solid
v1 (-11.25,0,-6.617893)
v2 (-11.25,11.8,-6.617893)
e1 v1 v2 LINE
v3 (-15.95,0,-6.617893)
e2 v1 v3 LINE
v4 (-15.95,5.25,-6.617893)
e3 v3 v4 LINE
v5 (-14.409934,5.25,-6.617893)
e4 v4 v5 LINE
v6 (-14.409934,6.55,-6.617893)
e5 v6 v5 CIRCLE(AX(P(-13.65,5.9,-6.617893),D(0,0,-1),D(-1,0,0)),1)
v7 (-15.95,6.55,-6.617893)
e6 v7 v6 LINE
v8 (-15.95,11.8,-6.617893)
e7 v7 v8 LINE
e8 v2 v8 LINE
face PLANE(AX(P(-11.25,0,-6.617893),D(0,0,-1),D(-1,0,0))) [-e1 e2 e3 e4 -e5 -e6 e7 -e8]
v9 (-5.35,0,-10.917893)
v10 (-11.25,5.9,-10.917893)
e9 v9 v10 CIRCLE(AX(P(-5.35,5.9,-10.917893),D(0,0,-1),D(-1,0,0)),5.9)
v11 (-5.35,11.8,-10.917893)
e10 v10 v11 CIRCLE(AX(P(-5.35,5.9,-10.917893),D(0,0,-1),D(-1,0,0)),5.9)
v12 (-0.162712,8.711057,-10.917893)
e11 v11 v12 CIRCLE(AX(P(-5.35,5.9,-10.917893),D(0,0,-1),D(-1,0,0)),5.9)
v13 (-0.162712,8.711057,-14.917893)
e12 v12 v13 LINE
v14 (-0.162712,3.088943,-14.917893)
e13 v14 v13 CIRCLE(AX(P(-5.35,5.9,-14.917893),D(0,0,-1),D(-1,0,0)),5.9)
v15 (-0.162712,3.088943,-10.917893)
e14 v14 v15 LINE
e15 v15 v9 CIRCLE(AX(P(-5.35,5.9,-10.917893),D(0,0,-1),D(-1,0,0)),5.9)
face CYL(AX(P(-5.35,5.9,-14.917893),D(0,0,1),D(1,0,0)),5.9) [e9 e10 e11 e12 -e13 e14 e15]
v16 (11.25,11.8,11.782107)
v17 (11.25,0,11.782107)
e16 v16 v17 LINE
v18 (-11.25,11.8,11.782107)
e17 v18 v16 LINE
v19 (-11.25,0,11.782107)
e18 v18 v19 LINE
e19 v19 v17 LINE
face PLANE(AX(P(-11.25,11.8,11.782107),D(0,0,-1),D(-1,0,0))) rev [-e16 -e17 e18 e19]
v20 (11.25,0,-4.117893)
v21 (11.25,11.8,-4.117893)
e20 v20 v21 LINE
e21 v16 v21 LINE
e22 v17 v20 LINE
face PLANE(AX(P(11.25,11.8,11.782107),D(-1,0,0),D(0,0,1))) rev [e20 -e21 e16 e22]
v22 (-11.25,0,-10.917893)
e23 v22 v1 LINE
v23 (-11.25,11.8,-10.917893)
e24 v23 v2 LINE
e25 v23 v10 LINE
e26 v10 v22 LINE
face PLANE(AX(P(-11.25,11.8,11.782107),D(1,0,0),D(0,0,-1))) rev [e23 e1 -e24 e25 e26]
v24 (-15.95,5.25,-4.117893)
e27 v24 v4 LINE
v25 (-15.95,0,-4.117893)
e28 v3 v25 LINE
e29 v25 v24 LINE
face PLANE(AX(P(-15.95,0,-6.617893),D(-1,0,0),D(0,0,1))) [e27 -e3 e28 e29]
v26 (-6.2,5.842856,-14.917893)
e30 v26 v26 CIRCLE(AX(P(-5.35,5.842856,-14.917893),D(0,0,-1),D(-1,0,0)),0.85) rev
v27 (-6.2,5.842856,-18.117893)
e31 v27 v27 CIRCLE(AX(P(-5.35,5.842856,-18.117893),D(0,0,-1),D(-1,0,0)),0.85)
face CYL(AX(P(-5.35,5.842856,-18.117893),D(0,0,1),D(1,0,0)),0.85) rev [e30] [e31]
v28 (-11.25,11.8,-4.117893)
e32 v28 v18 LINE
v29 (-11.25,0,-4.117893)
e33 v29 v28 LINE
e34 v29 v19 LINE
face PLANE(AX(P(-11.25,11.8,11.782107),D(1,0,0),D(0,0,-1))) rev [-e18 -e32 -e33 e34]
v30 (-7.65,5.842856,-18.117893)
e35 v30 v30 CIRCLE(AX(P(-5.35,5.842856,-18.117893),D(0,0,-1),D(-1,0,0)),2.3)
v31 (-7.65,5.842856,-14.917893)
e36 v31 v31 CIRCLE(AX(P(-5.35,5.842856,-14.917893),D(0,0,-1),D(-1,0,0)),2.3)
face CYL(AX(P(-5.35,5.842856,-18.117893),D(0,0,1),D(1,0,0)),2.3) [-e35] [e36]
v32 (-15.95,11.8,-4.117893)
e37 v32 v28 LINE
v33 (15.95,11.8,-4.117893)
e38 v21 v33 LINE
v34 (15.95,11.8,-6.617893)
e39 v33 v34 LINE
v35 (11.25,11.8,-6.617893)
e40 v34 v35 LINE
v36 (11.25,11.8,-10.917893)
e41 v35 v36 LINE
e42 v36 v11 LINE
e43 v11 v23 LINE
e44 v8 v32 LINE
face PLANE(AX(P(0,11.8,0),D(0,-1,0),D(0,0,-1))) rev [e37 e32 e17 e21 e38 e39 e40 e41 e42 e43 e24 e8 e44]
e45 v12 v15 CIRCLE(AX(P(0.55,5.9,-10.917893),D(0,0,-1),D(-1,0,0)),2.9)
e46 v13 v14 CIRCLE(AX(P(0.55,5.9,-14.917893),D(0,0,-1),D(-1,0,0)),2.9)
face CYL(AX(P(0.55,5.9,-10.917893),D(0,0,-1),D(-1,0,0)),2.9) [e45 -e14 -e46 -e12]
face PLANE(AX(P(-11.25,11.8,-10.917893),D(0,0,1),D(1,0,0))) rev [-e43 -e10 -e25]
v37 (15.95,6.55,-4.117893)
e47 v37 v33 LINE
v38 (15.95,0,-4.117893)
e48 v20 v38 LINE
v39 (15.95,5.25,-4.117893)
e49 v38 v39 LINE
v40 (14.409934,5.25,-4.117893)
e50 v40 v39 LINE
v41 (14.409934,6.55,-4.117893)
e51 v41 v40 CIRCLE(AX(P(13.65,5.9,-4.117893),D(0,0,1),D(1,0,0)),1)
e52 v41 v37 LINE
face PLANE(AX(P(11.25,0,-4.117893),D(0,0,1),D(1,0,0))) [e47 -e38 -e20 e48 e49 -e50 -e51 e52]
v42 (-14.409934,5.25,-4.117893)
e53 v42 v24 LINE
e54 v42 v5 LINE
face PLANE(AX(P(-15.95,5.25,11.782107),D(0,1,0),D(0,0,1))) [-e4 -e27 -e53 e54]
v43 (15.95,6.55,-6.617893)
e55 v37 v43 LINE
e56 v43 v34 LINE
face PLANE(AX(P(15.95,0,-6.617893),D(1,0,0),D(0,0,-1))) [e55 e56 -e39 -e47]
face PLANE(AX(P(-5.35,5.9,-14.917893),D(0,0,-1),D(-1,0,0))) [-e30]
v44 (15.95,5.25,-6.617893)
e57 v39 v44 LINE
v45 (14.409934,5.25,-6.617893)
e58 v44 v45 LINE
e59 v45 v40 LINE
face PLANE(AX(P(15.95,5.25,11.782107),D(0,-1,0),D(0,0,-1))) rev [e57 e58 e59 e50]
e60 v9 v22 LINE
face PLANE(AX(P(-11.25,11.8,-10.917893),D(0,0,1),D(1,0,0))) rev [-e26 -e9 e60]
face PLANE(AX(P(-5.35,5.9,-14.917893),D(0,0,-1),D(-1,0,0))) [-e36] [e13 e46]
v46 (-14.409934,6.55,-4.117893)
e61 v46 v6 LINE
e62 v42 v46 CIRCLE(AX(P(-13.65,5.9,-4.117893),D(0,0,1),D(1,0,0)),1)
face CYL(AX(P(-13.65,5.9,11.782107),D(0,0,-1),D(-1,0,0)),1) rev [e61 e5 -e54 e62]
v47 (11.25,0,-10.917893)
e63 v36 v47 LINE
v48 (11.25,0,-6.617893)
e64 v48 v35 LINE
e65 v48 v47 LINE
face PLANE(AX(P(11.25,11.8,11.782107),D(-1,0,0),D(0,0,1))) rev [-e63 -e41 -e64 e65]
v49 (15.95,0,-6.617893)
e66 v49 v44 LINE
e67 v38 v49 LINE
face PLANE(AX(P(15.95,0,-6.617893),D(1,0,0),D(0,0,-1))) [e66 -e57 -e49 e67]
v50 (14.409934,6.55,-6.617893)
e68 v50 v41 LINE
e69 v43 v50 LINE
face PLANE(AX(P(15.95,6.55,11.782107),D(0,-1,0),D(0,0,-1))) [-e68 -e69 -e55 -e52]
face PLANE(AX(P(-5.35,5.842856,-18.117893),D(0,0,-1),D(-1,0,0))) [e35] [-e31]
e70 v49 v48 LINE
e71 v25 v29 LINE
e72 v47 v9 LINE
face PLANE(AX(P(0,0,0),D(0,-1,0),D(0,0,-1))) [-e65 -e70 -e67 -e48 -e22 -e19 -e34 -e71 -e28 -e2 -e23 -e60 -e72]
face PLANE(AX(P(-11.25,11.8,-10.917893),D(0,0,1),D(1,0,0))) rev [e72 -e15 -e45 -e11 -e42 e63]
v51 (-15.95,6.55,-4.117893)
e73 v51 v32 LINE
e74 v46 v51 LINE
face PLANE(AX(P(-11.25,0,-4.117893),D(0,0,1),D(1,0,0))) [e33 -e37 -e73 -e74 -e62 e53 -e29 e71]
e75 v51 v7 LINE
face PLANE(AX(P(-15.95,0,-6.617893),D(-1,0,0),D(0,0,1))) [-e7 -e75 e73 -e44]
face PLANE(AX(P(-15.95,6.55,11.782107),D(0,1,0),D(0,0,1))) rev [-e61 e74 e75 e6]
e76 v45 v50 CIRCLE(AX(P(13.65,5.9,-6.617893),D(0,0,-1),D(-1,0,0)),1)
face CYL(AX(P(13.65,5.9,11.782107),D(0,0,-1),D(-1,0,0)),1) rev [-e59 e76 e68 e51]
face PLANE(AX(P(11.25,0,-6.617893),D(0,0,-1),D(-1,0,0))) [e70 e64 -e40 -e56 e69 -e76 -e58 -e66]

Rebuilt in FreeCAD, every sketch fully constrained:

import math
import FreeCAD as App
import Part
import Sketcher
from FreeCAD import Vector
Q = App.Units.Quantity


def add_polygon(sketch, points):
    """Adds a closed chain of lines whose ends are joined by coincident constraints."""
    first, n = sketch.GeometryCount, len(points)
    for a, b in zip(points, points[1:] + points[:1]):
        sketch.addGeometry(Part.LineSegment(App.Vector(*a, 0), App.Vector(*b, 0)), False)
    for i in range(n):
        sketch.addConstraint(Sketcher.Constraint("Coincident", first + i, 2, first + (i + 1) % n, 1))

doc = App.newDocument("Part")
params = doc.addObject("Spreadsheet::Sheet", "Params")
for row, (alias, value) in enumerate([
    ("sketch1_width", "22.5 mm"),
    ("sketch1_height", "22.7 mm"),
    ("pad1_length", "11.8 mm"),
    ("sketch2_width", "4.7 mm"),
    ("sketch2_height", "2.5 mm"),
    ("pad2_length", "11.8 mm"),
    ("sketch3_width", "4.7 mm"),
    ("sketch3_height", "2.5 mm"),
    ("pad3_length", "11.8 mm"),
    ("sketch4_diameter", "11.8 mm"),
    ("pad4_length", "4 mm"),
    ("sketch5_diameter", "5.8 mm"),
    ("pad5_length", "4 mm"),
    ("sketch6_radius", "1 mm"),
    ("sketch6_height", "1.3 mm"),
    ("sketch7_radius", "1 mm"),
    ("sketch7_height", "1.3 mm"),
    ("sketch8_diameter", "4.6 mm"),
    ("sketch8_diameter2", "1.7 mm"),
    ("pad6_length", "3.2 mm"),
], start=1):
    params.set(f"A{row}", alias)
    params.set(f"B{row}", "=" + value)
    params.setAlias(f"B{row}", alias)

body = doc.addObject("PartDesign::Body", "Body")

sketch1 = doc.addObject("Sketcher::SketchObject", "Sketch")
body.addObject(sketch1)
sketch1.AttachmentSupport = (doc.XZ_Plane, [""])
sketch1.MapMode = "FlatFace"
add_polygon(sketch1, [(-11.25, -10.917893), (-11.25, 11.782107), (11.25, 11.782107), (11.25, -10.917893)])
sketch1.addConstraint(Sketcher.Constraint("Vertical", 0))
sketch1.addConstraint(Sketcher.Constraint("Horizontal", 1))
sketch1.addConstraint(Sketcher.Constraint("Vertical", 2))
sketch1.addConstraint(Sketcher.Constraint("Horizontal", 3))
sketch1.addConstraint(Sketcher.Constraint("DistanceX", 1, 1, 1, 2, Q("22.5 mm")))
sketch1.addConstraint(Sketcher.Constraint("DistanceY", 0, 1, 0, 2, Q("22.7 mm")))
sketch1.addConstraint(Sketcher.Constraint("DistanceX", 0, 2, -1, 1, Q("11.25 mm")))
sketch1.addConstraint(Sketcher.Constraint("DistanceY", -1, 1, 0, 2, Q("11.782107 mm")))
sketch1.setExpression("Constraints[8]", "Params.sketch1_width")
sketch1.setExpression("Constraints[9]", "Params.sketch1_height")
pad1 = doc.addObject("PartDesign::Pad", "Pad")
body.addObject(pad1)
pad1.Profile = sketch1
pad1.setExpression("Length", "Params.pad1_length")
pad1.Reversed = True

sketch2 = doc.addObject("Sketcher::SketchObject", "Sketch001")
body.addObject(sketch2)
sketch2.AttachmentSupport = (doc.XZ_Plane, [""])
sketch2.MapMode = "FlatFace"
sketch2.AttachmentOffset = App.Placement(Vector(0, 0, -11.8), App.Rotation())
add_polygon(sketch2, [(11.25, -6.617893), (11.25, -4.117893), (15.95, -4.117893), (15.95, -6.617893)])
sketch2.addConstraint(Sketcher.Constraint("Vertical", 0))
sketch2.addConstraint(Sketcher.Constraint("Horizontal", 1))
sketch2.addConstraint(Sketcher.Constraint("Vertical", 2))
sketch2.addConstraint(Sketcher.Constraint("Horizontal", 3))
sketch2.addConstraint(Sketcher.Constraint("DistanceX", 1, 1, 1, 2, Q("4.7 mm")))
sketch2.addConstraint(Sketcher.Constraint("DistanceY", 0, 1, 0, 2, Q("2.5 mm")))
sketch2.addConstraint(Sketcher.Constraint("DistanceX", -1, 1, 0, 2, Q("11.25 mm")))
sketch2.addConstraint(Sketcher.Constraint("DistanceY", 0, 2, -1, 1, Q("4.117893 mm")))
sketch2.setExpression("Constraints[8]", "Params.sketch2_width")
sketch2.setExpression("Constraints[9]", "Params.sketch2_height")
pad2 = doc.addObject("PartDesign::Pad", "Pad001")
body.addObject(pad2)
pad2.Profile = sketch2
pad2.setExpression("Length", "Params.pad2_length")

sketch3 = doc.addObject("Sketcher::SketchObject", "Sketch002")
body.addObject(sketch3)
sketch3.AttachmentSupport = (doc.XZ_Plane, [""])
sketch3.MapMode = "FlatFace"
sketch3.AttachmentOffset = App.Placement(Vector(0, 0, -11.8), App.Rotation())
add_polygon(sketch3, [(-15.95, -6.617893), (-15.95, -4.117893), (-11.25, -4.117893), (-11.25, -6.617893)])
sketch3.addConstraint(Sketcher.Constraint("Vertical", 0))
sketch3.addConstraint(Sketcher.Constraint("Horizontal", 1))
sketch3.addConstraint(Sketcher.Constraint("Vertical", 2))
sketch3.addConstraint(Sketcher.Constraint("Horizontal", 3))
sketch3.addConstraint(Sketcher.Constraint("DistanceX", 1, 1, 1, 2, Q("4.7 mm")))
sketch3.addConstraint(Sketcher.Constraint("DistanceY", 0, 1, 0, 2, Q("2.5 mm")))
sketch3.addConstraint(Sketcher.Constraint("DistanceX", 0, 2, -1, 1, Q("15.95 mm")))
sketch3.addConstraint(Sketcher.Constraint("DistanceY", 0, 2, -1, 1, Q("4.117893 mm")))
sketch3.setExpression("Constraints[8]", "Params.sketch3_width")
sketch3.setExpression("Constraints[9]", "Params.sketch3_height")
pad3 = doc.addObject("PartDesign::Pad", "Pad002")
body.addObject(pad3)
pad3.Profile = sketch3
pad3.setExpression("Length", "Params.pad3_length")

sketch4 = doc.addObject("Sketcher::SketchObject", "Sketch003")
body.addObject(sketch4)
sketch4.AttachmentSupport = (doc.XY_Plane, [""])
sketch4.MapMode = "FlatFace"
sketch4.AttachmentOffset = App.Placement(Vector(0, 0, -10.917893), App.Rotation())
sketch4.addGeometry(Part.Circle(Vector(-5.35, 5.9, 0), Vector(0, 0, 1), 5.9), False)
sketch4.addConstraint(Sketcher.Constraint("Diameter", 0, Q("11.8 mm")))
sketch4.addConstraint(Sketcher.Constraint("DistanceY", -1, 1, 0, 3, Q("5.9 mm")))
sketch4.addConstraint(Sketcher.Constraint("DistanceX", 0, 3, -1, 1, Q("5.35 mm")))
sketch4.setExpression("Constraints[0]", "Params.sketch4_diameter")
pad4 = doc.addObject("PartDesign::Pad", "Pad003")
body.addObject(pad4)
pad4.Profile = sketch4
pad4.setExpression("Length", "Params.pad4_length")
pad4.Reversed = True

sketch5 = doc.addObject("Sketcher::SketchObject", "Sketch004")
body.addObject(sketch5)
sketch5.AttachmentSupport = (doc.XY_Plane, [""])
sketch5.MapMode = "FlatFace"
sketch5.AttachmentOffset = App.Placement(Vector(0, 0, -14.917893), App.Rotation())
sketch5.addGeometry(Part.Circle(Vector(0.55, 5.9, 0), Vector(0, 0, 1), 2.9), False)
sketch5.addConstraint(Sketcher.Constraint("Diameter", 0, Q("5.8 mm")))
sketch5.addConstraint(Sketcher.Constraint("DistanceY", -1, 1, 0, 3, Q("5.9 mm")))
sketch5.addConstraint(Sketcher.Constraint("DistanceX", -1, 1, 0, 3, Q("0.55 mm")))
sketch5.setExpression("Constraints[0]", "Params.sketch5_diameter")
pad5 = doc.addObject("PartDesign::Pad", "Pad004")
body.addObject(pad5)
pad5.Profile = sketch5
pad5.setExpression("Length", "Params.pad5_length")

sketch6 = doc.addObject("Sketcher::SketchObject", "Sketch005")
body.addObject(sketch6)
sketch6.AttachmentSupport = (doc.XY_Plane, [""])
sketch6.MapMode = "FlatFace"
sketch6.AttachmentOffset = App.Placement(Vector(0, 0, -6.617893), App.Rotation())
sketch6.addGeometry(Part.ArcOfCircle(Part.Circle(Vector(13.65, 5.9, 0), Vector(0, 0, 1), 1), math.radians(40.541602), math.radians(319.458398)), False)
sketch6.addGeometry(Part.LineSegment(Vector(14.409934, 6.55, 0), Vector(15.95, 6.55, 0)), False)
sketch6.addGeometry(Part.LineSegment(Vector(15.95, 6.55, 0), Vector(15.95, 5.25, 0)), False)
sketch6.addGeometry(Part.LineSegment(Vector(15.95, 5.25, 0), Vector(14.409934, 5.25, 0)), False)
sketch6.addConstraint(Sketcher.Constraint("Coincident", 0, 1, 1, 1))
sketch6.addConstraint(Sketcher.Constraint("Coincident", 1, 2, 2, 1))
sketch6.addConstraint(Sketcher.Constraint("Coincident", 2, 2, 3, 1))
sketch6.addConstraint(Sketcher.Constraint("Coincident", 3, 2, 0, 2))
sketch6.addConstraint(Sketcher.Constraint("Horizontal", 1))
sketch6.addConstraint(Sketcher.Constraint("Vertical", 2))
sketch6.addConstraint(Sketcher.Constraint("Horizontal", 3))
sketch6.addConstraint(Sketcher.Constraint("Vertical", 0, 1, 3, 2))
sketch6.addConstraint(Sketcher.Constraint("Radius", 0, Q("1 mm")))
sketch6.addConstraint(Sketcher.Constraint("DistanceY", 2, 2, 2, 1, Q("1.3 mm")))
sketch6.addConstraint(Sketcher.Constraint("DistanceY", -1, 1, 0, 3, Q("5.9 mm")))
sketch6.addConstraint(Sketcher.Constraint("DistanceX", 0, 3, 1, 2, Q("2.3 mm")))
sketch6.addConstraint(Sketcher.Constraint("DistanceX", -1, 1, 0, 3, Q("13.65 mm")))
sketch6.setExpression("Constraints[8]", "Params.sketch6_radius")
sketch6.setExpression("Constraints[9]", "Params.sketch6_height")
pocket1 = doc.addObject("PartDesign::Pocket", "Pocket")
body.addObject(pocket1)
pocket1.Profile = sketch6
pocket1.Type = "ThroughAll"
pocket1.Reversed = True

sketch7 = doc.addObject("Sketcher::SketchObject", "Sketch006")
body.addObject(sketch7)
sketch7.AttachmentSupport = (doc.XY_Plane, [""])
sketch7.MapMode = "FlatFace"
sketch7.AttachmentOffset = App.Placement(Vector(0, 0, -6.617893), App.Rotation())
sketch7.addGeometry(Part.LineSegment(Vector(-14.409934, 5.25, 0), Vector(-15.95, 5.25, 0)), False)
sketch7.addGeometry(Part.LineSegment(Vector(-15.95, 5.25, 0), Vector(-15.95, 6.55, 0)), False)
sketch7.addGeometry(Part.LineSegment(Vector(-15.95, 6.55, 0), Vector(-14.409934, 6.55, 0)), False)
sketch7.addGeometry(Part.ArcOfCircle(Part.Circle(Vector(-13.65, 5.9, 0), Vector(0, 0, 1), 1), math.radians(-139.458398), math.radians(139.458398)), False)
sketch7.addConstraint(Sketcher.Constraint("Coincident", 0, 2, 1, 1))
sketch7.addConstraint(Sketcher.Constraint("Coincident", 1, 2, 2, 1))
sketch7.addConstraint(Sketcher.Constraint("Coincident", 2, 2, 3, 2))
sketch7.addConstraint(Sketcher.Constraint("Coincident", 3, 1, 0, 1))
sketch7.addConstraint(Sketcher.Constraint("Horizontal", 0))
sketch7.addConstraint(Sketcher.Constraint("Vertical", 1))
sketch7.addConstraint(Sketcher.Constraint("Horizontal", 2))
sketch7.addConstraint(Sketcher.Constraint("Vertical", 2, 2, 3, 1))
sketch7.addConstraint(Sketcher.Constraint("Radius", 3, Q("1 mm")))
sketch7.addConstraint(Sketcher.Constraint("DistanceY", 1, 1, 1, 2, Q("1.3 mm")))
sketch7.addConstraint(Sketcher.Constraint("DistanceY", -1, 1, 3, 3, Q("5.9 mm")))
sketch7.addConstraint(Sketcher.Constraint("DistanceX", 0, 2, 3, 3, Q("2.3 mm")))
sketch7.addConstraint(Sketcher.Constraint("DistanceX", 3, 3, -1, 1, Q("13.65 mm")))
sketch7.setExpression("Constraints[8]", "Params.sketch7_radius")
sketch7.setExpression("Constraints[9]", "Params.sketch7_height")
pocket2 = doc.addObject("PartDesign::Pocket", "Pocket001")
body.addObject(pocket2)
pocket2.Profile = sketch7
pocket2.Type = "ThroughAll"
pocket2.Reversed = True

sketch8 = doc.addObject("Sketcher::SketchObject", "Sketch007")
body.addObject(sketch8)
sketch8.AttachmentSupport = (doc.XY_Plane, [""])
sketch8.MapMode = "FlatFace"
sketch8.AttachmentOffset = App.Placement(Vector(0, 0, -14.917893), App.Rotation())
sketch8.addGeometry(Part.Circle(Vector(-5.35, 5.842856, 0), Vector(0, 0, 1), 2.3), False)
sketch8.addGeometry(Part.Circle(Vector(-5.35, 5.842856, 0), Vector(0, 0, 1), 0.85), False)
sketch8.addConstraint(Sketcher.Constraint("Coincident", 1, 3, 0, 3))
sketch8.addConstraint(Sketcher.Constraint("Diameter", 0, Q("4.6 mm")))
sketch8.addConstraint(Sketcher.Constraint("Diameter", 1, Q("1.7 mm")))
sketch8.addConstraint(Sketcher.Constraint("DistanceX", 0, 3, -1, 1, Q("5.35 mm")))
sketch8.addConstraint(Sketcher.Constraint("DistanceY", -1, 1, 0, 3, Q("5.842856 mm")))
sketch8.setExpression("Constraints[1]", "Params.sketch8_diameter")
sketch8.setExpression("Constraints[2]", "Params.sketch8_diameter2")
pad6 = doc.addObject("PartDesign::Pad", "Pad005")
body.addObject(pad6)
pad6.Profile = sketch8
pad6.setExpression("Length", "Params.pad6_length")
pad6.Reversed = True

doc.recompute()
